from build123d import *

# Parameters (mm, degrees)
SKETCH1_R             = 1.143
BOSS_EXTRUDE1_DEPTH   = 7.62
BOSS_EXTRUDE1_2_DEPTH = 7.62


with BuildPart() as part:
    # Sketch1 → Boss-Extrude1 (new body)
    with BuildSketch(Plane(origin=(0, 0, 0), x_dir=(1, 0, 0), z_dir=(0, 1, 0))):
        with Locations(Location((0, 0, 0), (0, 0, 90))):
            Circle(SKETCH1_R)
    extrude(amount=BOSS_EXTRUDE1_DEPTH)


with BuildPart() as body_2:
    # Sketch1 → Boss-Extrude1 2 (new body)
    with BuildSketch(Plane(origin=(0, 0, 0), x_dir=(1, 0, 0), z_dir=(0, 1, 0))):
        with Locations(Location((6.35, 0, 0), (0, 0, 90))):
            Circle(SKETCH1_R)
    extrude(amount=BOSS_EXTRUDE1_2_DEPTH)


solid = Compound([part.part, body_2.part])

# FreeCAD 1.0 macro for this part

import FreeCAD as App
import Part
import Sketcher

V = App.Vector
Q = App.Units.Quantity

doc = App.newDocument("Part")
body = doc.addObject("PartDesign::Body", "Body")

sketch1 = body.newObject("Sketcher::SketchObject", "Sketch")
sketch1.AttachmentSupport = (doc.getObject("XZ_Plane"), [""])
sketch1.MapMode = "FlatFace"
sketch1.addGeometry(Part.Circle(V(0, 0, 0), V(0, 0, 1), 1.143), False)
sketch1.addConstraint([
    Sketcher.Constraint("Coincident", 0, 3, -1, 1),
    Sketcher.Constraint("Diameter", 0, Q("0.09 in")),
])
pad1 = body.newObject("PartDesign::Pad", "Pad")
pad1.Profile = sketch1
pad1.Length = Q("0.3 in")
pad1.Reversed = True
body2 = doc.addObject("PartDesign::Body", "Body001")

sketch2 = body2.newObject("Sketcher::SketchObject", "Sketch001")
sketch2.AttachmentSupport = (doc.getObject("XZ_Plane001"), [""])
sketch2.MapMode = "FlatFace"
sketch2.addGeometry(Part.Circle(V(6.35, 0, 0), V(0, 0, 1), 1.143), False)
sketch2.addConstraint([
    Sketcher.Constraint("PointOnObject", 0, 3, -1),
    Sketcher.Constraint("Diameter", 0, Q("0.09 in")),
    Sketcher.Constraint("DistanceX", -1, 1, 0, 3, Q("0.25 in")),
])
pad2 = body2.newObject("PartDesign::Pad", "Pad001")
pad2.Profile = sketch2
pad2.Length = Q("0.3 in")
pad2.Reversed = True

doc.recompute()
